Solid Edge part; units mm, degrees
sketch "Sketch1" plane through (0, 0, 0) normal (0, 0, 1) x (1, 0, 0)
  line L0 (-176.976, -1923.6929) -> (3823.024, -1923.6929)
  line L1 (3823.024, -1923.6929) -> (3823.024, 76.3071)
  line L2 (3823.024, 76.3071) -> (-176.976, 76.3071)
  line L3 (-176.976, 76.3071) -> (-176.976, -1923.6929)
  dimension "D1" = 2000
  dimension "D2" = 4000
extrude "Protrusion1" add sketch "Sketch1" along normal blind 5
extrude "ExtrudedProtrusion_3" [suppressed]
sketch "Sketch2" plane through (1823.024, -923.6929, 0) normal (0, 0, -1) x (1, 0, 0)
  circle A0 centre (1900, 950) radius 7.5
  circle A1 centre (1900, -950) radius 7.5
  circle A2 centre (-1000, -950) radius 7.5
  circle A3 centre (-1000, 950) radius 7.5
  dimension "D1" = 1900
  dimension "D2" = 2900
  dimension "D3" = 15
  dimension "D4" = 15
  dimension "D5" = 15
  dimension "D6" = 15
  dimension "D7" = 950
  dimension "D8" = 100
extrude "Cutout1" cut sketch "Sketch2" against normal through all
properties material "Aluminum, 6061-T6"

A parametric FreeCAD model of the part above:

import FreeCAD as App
import Part
import Sketcher
Q = App.Units.Quantity

doc = App.newDocument("Part")
body = doc.addObject("PartDesign::Body", "Body")

sketch1 = body.newObject("Sketcher::SketchObject", "Sketch")
sketch1.AttachmentSupport = (doc.getObject("XY_Plane"), [""])
sketch1.MapMode = "FlatFace"
sketch1.addGeometry(Part.LineSegment(App.Vector(-177, 76, 0), App.Vector(-177, -1924, 0)), False)
sketch1.addGeometry(Part.LineSegment(App.Vector(-177, -1924, 0), App.Vector(3823, -1924, 0)), False)
sketch1.addGeometry(Part.LineSegment(App.Vector(3823, -1924, 0), App.Vector(3823, 76, 0)), False)
sketch1.addGeometry(Part.LineSegment(App.Vector(3823, 76, 0), App.Vector(-177, 76, 0)), False)
sketch1.addConstraint(Sketcher.Constraint("Coincident", 0, 2, 1, 1))
sketch1.addConstraint(Sketcher.Constraint("Coincident", 1, 2, 2, 1))
sketch1.addConstraint(Sketcher.Constraint("Coincident", 2, 2, 3, 1))
sketch1.addConstraint(Sketcher.Constraint("Coincident", 3, 2, 0, 1))
sketch1.addConstraint(Sketcher.Constraint("Vertical", 0))
sketch1.addConstraint(Sketcher.Constraint("Horizontal", 1))
sketch1.addConstraint(Sketcher.Constraint("Vertical", 2))
sketch1.addConstraint(Sketcher.Constraint("Horizontal", 3))
sketch1.addConstraint(Sketcher.Constraint("DistanceX", 1, 1, 1, 2, Q("4000 mm")))
sketch1.addConstraint(Sketcher.Constraint("DistanceY", 0, 2, 0, 1, Q("2000 mm")))
sketch1.addConstraint(Sketcher.Constraint("DistanceX", 0, 2, -1, 1, Q("176.976 mm")))
sketch1.addConstraint(Sketcher.Constraint("DistanceY", 0, 2, -1, 1, Q("1923.693 mm")))
pad1 = body.newObject("PartDesign::Pad", "Pad")
pad1.Profile = sketch1
pad1.Length = 5

sketch2 = body.newObject("Sketcher::SketchObject", "Sketch001")
sketch2.AttachmentSupport = (doc.getObject("XY_Plane"), [""])
sketch2.MapMode = "FlatFace"
sketch2.addGeometry(Part.Circle(App.Vector(3723, -1874, 0), App.Vector(0, 0, 1), 8), False)
sketch2.addGeometry(Part.Circle(App.Vector(3723, 26, 0), App.Vector(0, 0, 1), 8), False)
sketch2.addGeometry(Part.Circle(App.Vector(823, 26, 0), App.Vector(0, 0, 1), 8), False)
sketch2.addGeometry(Part.Circle(App.Vector(823, -1874, 0), App.Vector(0, 0, 1), 8), False)
sketch2.addConstraint(Sketcher.Constraint("Equal", 0, 1))
sketch2.addConstraint(Sketcher.Constraint("Equal", 1, 2))
sketch2.addConstraint(Sketcher.Constraint("Equal", 2, 3))
sketch2.addConstraint(Sketcher.Constraint("Horizontal", 1, 3, 2, 3))
sketch2.addConstraint(Sketcher.Constraint("Horizontal", 0, 3, 3, 3))
sketch2.addConstraint(Sketcher.Constraint("Vertical", 0, 3, 1, 3))
sketch2.addConstraint(Sketcher.Constraint("Vertical", 2, 3, 3, 3))
sketch2.addConstraint(Sketcher.Constraint("Diameter", 0, Q("15 mm")))
sketch2.addConstraint(Sketcher.Constraint("DistanceY", 0, 3, 1, 3, Q("1900 mm")))
sketch2.addConstraint(Sketcher.Constraint("DistanceX", 2, 3, 1, 3, Q("2900 mm")))
sketch2.addConstraint(Sketcher.Constraint("DistanceX", -1, 1, 0, 3, Q("3723.024 mm")))
sketch2.addConstraint(Sketcher.Constraint("DistanceY", 0, 3, -1, 1, Q("1873.693 mm")))
pocket1 = body.newObject("PartDesign::Pocket", "Pocket")
pocket1.Profile = sketch2
pocket1.Type = "ThroughAll"
pocket1.Reversed = True

doc.recompute()
